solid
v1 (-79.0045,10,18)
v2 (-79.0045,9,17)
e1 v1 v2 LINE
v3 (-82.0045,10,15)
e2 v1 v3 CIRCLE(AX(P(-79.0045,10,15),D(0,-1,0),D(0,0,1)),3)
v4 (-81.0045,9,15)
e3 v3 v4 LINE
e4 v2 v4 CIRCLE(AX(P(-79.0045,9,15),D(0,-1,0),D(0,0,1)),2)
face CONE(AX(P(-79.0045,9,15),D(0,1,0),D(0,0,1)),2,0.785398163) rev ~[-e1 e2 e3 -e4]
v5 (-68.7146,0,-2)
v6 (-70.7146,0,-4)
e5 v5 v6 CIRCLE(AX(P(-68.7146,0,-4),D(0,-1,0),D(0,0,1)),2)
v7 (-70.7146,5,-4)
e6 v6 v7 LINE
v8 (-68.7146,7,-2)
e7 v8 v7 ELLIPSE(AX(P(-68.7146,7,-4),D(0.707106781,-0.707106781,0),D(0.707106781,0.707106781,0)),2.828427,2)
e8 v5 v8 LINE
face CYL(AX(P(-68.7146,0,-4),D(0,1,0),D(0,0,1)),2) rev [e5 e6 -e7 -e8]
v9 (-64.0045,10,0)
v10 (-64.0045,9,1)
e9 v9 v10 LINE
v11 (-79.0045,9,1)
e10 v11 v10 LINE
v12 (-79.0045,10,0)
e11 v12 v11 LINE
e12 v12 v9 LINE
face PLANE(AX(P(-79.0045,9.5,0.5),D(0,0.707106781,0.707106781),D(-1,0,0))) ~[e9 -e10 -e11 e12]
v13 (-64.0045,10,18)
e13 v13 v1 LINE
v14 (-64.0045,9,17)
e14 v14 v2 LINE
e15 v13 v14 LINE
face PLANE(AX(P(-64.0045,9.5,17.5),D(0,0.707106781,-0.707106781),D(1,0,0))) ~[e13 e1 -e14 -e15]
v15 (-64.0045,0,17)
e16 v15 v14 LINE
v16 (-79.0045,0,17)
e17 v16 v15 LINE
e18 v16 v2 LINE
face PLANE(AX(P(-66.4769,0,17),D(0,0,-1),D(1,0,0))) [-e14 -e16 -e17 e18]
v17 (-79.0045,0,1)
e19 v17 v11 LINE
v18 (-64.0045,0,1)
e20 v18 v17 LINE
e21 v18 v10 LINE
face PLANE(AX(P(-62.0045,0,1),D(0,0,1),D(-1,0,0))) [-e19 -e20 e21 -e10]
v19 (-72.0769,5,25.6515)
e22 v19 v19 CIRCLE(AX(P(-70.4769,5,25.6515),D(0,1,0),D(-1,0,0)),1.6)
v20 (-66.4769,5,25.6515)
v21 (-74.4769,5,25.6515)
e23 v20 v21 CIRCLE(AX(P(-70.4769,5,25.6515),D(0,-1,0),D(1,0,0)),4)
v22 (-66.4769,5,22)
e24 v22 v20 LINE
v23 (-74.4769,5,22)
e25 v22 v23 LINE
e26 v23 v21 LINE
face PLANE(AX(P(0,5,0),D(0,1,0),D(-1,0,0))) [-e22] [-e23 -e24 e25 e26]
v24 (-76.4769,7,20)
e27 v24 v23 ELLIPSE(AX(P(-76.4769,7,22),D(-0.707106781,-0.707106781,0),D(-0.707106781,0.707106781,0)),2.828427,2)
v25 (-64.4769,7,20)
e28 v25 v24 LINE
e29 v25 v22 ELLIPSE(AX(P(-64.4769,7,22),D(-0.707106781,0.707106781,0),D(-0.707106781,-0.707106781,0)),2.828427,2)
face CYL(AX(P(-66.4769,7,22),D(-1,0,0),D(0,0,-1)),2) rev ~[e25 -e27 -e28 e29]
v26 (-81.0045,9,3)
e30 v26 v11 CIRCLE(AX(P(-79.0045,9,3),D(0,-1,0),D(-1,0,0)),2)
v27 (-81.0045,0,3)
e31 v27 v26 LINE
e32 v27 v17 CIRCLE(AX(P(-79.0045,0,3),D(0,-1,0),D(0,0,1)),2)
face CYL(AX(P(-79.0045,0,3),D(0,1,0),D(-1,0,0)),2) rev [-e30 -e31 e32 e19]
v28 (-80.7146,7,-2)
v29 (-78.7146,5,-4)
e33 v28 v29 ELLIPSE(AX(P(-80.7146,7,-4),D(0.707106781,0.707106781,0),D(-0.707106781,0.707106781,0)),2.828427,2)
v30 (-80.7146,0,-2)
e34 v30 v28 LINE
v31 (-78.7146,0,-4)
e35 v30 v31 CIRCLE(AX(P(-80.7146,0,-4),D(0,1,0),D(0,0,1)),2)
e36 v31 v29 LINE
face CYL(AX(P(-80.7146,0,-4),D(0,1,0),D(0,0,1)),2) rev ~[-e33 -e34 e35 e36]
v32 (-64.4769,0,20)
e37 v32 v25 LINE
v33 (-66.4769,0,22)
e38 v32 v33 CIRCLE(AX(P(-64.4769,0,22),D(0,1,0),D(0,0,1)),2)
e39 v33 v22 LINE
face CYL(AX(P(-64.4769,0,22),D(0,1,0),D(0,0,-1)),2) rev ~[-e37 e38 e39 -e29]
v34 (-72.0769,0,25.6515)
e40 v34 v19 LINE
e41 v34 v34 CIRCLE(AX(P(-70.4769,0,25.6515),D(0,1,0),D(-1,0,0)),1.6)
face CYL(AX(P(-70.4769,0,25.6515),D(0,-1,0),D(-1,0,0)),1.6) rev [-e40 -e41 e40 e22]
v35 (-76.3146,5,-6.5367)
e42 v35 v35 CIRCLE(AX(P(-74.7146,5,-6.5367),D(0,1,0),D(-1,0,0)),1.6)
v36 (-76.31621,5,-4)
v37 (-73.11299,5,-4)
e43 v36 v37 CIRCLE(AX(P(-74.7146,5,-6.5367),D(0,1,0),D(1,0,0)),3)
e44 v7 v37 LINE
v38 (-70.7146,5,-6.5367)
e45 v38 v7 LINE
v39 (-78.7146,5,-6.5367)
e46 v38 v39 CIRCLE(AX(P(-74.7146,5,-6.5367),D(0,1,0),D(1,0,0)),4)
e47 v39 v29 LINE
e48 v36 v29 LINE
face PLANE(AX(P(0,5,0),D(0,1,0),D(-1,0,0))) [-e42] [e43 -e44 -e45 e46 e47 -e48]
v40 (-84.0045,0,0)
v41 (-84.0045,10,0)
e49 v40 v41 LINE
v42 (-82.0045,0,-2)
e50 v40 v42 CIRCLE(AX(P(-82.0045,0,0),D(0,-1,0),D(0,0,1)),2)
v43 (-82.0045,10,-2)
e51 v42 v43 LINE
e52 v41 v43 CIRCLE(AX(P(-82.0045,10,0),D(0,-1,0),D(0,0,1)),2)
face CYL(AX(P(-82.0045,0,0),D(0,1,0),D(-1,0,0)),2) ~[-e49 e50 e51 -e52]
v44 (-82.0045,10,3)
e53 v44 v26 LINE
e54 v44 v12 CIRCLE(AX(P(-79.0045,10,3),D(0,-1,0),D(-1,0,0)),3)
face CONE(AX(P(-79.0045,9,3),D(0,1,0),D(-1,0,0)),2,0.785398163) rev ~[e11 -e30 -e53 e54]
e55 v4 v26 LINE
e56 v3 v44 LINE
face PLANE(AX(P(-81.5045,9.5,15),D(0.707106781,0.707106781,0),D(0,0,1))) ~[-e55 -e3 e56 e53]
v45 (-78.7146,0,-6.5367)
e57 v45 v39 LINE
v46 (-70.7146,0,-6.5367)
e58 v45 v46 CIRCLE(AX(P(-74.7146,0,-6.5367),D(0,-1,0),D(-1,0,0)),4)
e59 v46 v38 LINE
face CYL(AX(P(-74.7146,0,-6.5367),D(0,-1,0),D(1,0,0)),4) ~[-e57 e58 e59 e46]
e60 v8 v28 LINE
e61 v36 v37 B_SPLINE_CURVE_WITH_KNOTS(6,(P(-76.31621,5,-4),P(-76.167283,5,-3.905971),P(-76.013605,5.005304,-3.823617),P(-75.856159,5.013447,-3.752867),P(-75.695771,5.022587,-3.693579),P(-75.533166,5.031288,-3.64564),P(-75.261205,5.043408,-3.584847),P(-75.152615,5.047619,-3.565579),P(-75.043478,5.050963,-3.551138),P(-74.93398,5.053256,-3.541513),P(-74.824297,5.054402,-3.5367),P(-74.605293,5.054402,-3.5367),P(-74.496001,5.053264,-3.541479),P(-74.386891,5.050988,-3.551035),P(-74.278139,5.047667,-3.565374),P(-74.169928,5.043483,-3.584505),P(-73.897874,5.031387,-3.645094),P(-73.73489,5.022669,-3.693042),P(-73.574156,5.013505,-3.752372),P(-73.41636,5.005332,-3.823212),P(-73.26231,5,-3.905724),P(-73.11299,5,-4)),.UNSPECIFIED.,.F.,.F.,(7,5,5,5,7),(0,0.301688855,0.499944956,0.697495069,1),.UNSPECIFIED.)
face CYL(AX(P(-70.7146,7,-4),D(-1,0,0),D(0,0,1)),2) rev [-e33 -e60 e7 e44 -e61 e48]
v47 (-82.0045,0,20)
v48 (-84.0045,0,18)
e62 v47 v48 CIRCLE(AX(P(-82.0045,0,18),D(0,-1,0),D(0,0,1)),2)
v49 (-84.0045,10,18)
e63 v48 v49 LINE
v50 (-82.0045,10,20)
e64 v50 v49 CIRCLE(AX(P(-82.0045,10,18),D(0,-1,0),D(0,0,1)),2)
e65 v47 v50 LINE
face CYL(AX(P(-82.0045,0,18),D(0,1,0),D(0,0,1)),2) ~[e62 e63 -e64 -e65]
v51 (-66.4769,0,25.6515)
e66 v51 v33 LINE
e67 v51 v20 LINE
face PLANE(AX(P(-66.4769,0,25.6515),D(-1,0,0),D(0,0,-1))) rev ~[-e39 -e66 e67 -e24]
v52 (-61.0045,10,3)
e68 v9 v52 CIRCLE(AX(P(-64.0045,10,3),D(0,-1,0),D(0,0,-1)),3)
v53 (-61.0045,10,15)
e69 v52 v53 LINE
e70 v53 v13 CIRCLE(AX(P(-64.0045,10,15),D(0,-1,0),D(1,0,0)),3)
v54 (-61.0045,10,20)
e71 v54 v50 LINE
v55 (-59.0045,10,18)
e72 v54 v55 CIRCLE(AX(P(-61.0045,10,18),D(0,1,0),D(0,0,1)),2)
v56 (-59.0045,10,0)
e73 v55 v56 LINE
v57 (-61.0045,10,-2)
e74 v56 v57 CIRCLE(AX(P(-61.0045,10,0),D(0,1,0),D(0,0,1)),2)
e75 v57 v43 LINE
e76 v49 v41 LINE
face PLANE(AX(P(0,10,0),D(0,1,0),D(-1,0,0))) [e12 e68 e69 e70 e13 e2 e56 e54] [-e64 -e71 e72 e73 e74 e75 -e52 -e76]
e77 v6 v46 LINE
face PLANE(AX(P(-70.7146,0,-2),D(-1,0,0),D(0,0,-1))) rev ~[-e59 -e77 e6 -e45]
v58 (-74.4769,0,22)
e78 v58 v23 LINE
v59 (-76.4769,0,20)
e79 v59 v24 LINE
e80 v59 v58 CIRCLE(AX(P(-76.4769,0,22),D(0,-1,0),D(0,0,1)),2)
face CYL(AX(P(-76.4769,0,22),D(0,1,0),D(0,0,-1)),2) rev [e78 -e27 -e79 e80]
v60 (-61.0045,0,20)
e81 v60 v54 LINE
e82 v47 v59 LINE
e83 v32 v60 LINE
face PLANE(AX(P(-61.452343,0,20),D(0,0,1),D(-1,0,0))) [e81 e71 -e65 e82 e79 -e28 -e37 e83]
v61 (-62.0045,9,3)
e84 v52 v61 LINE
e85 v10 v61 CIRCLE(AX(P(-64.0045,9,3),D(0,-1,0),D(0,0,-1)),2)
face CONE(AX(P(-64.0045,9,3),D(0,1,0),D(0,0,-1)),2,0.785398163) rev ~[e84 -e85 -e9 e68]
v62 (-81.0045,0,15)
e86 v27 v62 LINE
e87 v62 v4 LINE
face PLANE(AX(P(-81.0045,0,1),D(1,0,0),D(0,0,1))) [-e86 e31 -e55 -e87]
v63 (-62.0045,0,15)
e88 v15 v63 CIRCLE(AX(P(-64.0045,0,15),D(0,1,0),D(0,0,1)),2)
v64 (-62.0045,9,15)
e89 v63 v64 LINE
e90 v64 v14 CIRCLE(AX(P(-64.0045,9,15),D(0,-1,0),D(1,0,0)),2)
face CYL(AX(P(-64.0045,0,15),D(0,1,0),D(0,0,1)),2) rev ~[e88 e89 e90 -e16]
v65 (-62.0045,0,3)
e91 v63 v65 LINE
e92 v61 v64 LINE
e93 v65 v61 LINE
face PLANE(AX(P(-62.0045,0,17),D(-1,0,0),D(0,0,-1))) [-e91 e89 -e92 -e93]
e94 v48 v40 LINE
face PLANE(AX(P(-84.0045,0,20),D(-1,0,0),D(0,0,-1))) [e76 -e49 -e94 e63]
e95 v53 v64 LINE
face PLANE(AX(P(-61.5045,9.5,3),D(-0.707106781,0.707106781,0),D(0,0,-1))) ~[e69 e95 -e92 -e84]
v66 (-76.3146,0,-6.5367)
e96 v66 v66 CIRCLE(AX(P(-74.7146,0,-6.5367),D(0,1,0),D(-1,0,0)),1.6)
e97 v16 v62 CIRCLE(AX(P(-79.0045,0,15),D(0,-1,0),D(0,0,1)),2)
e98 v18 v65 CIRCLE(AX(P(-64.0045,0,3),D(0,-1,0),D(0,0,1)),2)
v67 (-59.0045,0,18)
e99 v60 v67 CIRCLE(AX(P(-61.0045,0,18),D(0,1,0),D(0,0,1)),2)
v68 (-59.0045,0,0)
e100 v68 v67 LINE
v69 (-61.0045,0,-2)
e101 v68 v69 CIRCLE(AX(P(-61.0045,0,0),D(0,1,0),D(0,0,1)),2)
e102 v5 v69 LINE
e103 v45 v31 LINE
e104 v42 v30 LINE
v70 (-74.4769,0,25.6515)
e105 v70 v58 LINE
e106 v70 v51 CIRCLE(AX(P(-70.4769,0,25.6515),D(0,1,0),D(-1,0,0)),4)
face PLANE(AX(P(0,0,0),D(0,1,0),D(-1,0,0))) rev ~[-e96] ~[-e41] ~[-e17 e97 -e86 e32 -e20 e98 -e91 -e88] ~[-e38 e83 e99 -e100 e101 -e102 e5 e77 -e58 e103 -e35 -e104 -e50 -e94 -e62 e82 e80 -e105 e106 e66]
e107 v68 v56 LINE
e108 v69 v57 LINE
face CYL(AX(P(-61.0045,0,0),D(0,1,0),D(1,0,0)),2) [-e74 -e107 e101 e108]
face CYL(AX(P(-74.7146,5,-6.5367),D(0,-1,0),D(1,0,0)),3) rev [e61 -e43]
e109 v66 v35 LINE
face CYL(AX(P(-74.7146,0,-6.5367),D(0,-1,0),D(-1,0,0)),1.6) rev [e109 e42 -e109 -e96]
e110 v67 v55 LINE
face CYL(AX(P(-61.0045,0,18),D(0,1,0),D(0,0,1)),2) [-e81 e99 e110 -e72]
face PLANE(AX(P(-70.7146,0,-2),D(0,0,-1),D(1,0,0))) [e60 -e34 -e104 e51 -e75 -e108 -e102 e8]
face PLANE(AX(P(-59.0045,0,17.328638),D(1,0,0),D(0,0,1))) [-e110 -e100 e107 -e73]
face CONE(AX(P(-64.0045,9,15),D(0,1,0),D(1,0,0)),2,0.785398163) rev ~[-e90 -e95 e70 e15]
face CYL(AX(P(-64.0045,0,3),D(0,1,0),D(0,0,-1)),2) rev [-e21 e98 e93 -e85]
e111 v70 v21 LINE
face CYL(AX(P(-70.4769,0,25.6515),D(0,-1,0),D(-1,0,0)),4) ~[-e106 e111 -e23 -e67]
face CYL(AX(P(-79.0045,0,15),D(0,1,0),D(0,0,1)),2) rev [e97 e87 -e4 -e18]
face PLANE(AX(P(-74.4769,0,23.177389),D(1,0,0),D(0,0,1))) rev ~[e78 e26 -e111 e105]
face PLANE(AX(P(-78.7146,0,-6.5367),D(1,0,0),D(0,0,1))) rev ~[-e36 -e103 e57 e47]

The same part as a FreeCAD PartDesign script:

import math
import FreeCAD as App
import Part
import Sketcher
from FreeCAD import Vector


def edges_at(feature, points):
    """Names of the edges that pass closest to the given points."""
    edges = feature.Shape.Edges
    near = lambda p: min(range(len(edges)), key=lambda i: edges[i].distToShape(Part.Vertex(*p))[0])
    return sorted({f"Edge{near(p) + 1}" for p in points})

doc = App.newDocument("Part")
params = doc.addObject("Spreadsheet::Sheet", "Params")
for row, (alias, value) in enumerate([
    ("sketch1_width", "19 mm"),
    ("sketch1_height", "22 mm"),
    ("sketch1_height2", "16 mm"),
    ("pad1_length", "10 mm"),
    ("sketch2_radius", "4 mm"),
    ("sketch2_diameter", "3.2 mm"),
    ("pad2_length", "5 mm"),
    ("fillet_radius", "2 mm"),
    ("fillet2_radius", "2 mm"),
    ("chamfer_size", "1 mm"),
    ("sketch3_diameter", "6 mm"),
    ("pocket1_length", "10 mm"),
], start=1):
    params.set(f"A{row}", alias)
    params.set(f"B{row}", "=" + value)
    params.setAlias(f"B{row}", alias)

body = doc.addObject("PartDesign::Body", "Body")

sketch1 = body.newObject("Sketcher::SketchObject", "Sketch")
sketch1.AttachmentSupport = (doc.getObject("XZ_Plane"), [""])
sketch1.MapMode = "FlatFace"
sketch1.addGeometry([
    Part.LineSegment(Vector(-59, 20, 0), Vector(-59, -2, 0)),
    Part.LineSegment(Vector(-59, -2, 0), Vector(-84, -2, 0)),
    Part.LineSegment(Vector(-84, -2, 0), Vector(-84, 20, 0)),
    Part.LineSegment(Vector(-84, 20, 0), Vector(-59, 20, 0)),
    Part.LineSegment(Vector(-62, 17, 0), Vector(-81, 17, 0)),
    Part.LineSegment(Vector(-81, 17, 0), Vector(-81, 1, 0)),
    Part.LineSegment(Vector(-81, 1, 0), Vector(-62, 1, 0)),
    Part.LineSegment(Vector(-62, 1, 0), Vector(-62, 17, 0)),
], False)
sketch1.addConstraint([
    Sketcher.Constraint("Coincident", 0, 2, 1, 1),
    Sketcher.Constraint("Coincident", 1, 2, 2, 1),
    Sketcher.Constraint("Coincident", 2, 2, 3, 1),
    Sketcher.Constraint("Coincident", 3, 2, 0, 1),
    Sketcher.Constraint("Coincident", 4, 2, 5, 1),
    Sketcher.Constraint("Coincident", 5, 2, 6, 1),
    Sketcher.Constraint("Coincident", 6, 2, 7, 1),
    Sketcher.Constraint("Coincident", 7, 2, 4, 1),
    Sketcher.Constraint("Vertical", 0),
    Sketcher.Constraint("Horizontal", 1),
    Sketcher.Constraint("Vertical", 2),
    Sketcher.Constraint("Horizontal", 3),
    Sketcher.Constraint("Horizontal", 4),
    Sketcher.Constraint("Vertical", 5),
    Sketcher.Constraint("Horizontal", 6),
    Sketcher.Constraint("Vertical", 7),
    Sketcher.Constraint("DistanceX", 4, 2, 4, 1, 19.0),
    Sketcher.Constraint("DistanceY", 0, 2, 0, 1, 22.0),
    Sketcher.Constraint("DistanceY", 5, 2, 5, 1, 16.0),
    Sketcher.Constraint("DistanceY", 0, 2, -1, 1, 2.0),
    Sketcher.Constraint("DistanceY", -1, 1, 5, 2, 1.0),
    Sketcher.Constraint("DistanceX", 2, 2, 4, 2, 3.0),
    Sketcher.Constraint("DistanceX", 4, 2, 3, 2, 22.0),
    Sketcher.Constraint("DistanceX", 0, 2, -1, 1, 59.0045),
])
sketch1.setExpression("Constraints[16]", "Params.sketch1_width")
sketch1.setExpression("Constraints[17]", "Params.sketch1_height")
sketch1.setExpression("Constraints[18]", "Params.sketch1_height2")
pad1 = body.newObject("PartDesign::Pad", "Pad")
pad1.Profile = sketch1
pad1.setExpression("Length", "Params.pad1_length")
pad1.Reversed = True

sketch2 = body.newObject("Sketcher::SketchObject", "Sketch001")
sketch2.AttachmentSupport = (doc.getObject("XZ_Plane"), [""])
sketch2.MapMode = "FlatFace"
sketch2.addGeometry([
    Part.LineSegment(Vector(-66.5, 25.7, 0), Vector(-66.5, 20, 0)),
    Part.LineSegment(Vector(-66.5, 20, 0), Vector(-74.5, 20, 0)),
    Part.LineSegment(Vector(-74.5, 20, 0), Vector(-74.5, 25.7, 0)),
    Part.ArcOfCircle(Part.Circle(Vector(-70.5, 25.7, 0), Vector(0, 0, 1), 4), math.radians(0), math.radians(180)),
    Part.Circle(Vector(-70.5, 25.7, 0), Vector(0, 0, 1), 1.6),
    Part.LineSegment(Vector(-70.7, -2, 0), Vector(-70.7, -6.5, 0)),
    Part.ArcOfCircle(Part.Circle(Vector(-74.7, -6.5, 0), Vector(0, 0, 1), 4), math.radians(180), math.radians(360)),
    Part.LineSegment(Vector(-78.7, -6.5, 0), Vector(-78.7, -2, 0)),
    Part.LineSegment(Vector(-78.7, -2, 0), Vector(-70.7, -2, 0)),
    Part.Circle(Vector(-74.7, -6.5, 0), Vector(0, 0, 1), 1.6),
], False)
sketch2.addConstraint([
    Sketcher.Constraint("Coincident", 0, 2, 1, 1),
    Sketcher.Constraint("Coincident", 1, 2, 2, 1),
    Sketcher.Constraint("Tangent", 2, 2, 3, 2),
    Sketcher.Constraint("Tangent", 3, 1, 0, 1),
    Sketcher.Constraint("Tangent", 5, 2, 6, 2),
    Sketcher.Constraint("Tangent", 6, 1, 7, 1),
    Sketcher.Constraint("Coincident", 7, 2, 8, 1),
    Sketcher.Constraint("Coincident", 8, 2, 5, 1),
    Sketcher.Constraint("Vertical", 0),
    Sketcher.Constraint("Horizontal", 1),
    Sketcher.Constraint("Vertical", 2),
    Sketcher.Constraint("Vertical", 5),
    Sketcher.Constraint("Vertical", 7),
    Sketcher.Constraint("Horizontal", 8),
    Sketcher.Constraint("Coincident", 4, 3, 3, 3),
    Sketcher.Constraint("Coincident", 9, 3, 6, 3),
    Sketcher.Constraint("Equal", 3, 6),
    Sketcher.Constraint("Equal", 4, 9),
    Sketcher.Constraint("Radius", 3, 4.0),
    Sketcher.Constraint("Diameter", 4, 3.2),
    Sketcher.Constraint("DistanceY", -1, 1, 0, 2, 20.0),
    Sketcher.Constraint("DistanceY", 7, 2, -1, 1, 2.0),
    Sketcher.Constraint("DistanceY", 0, 2, 0, 1, 5.6515),
    Sketcher.Constraint("DistanceY", 5, 2, 5, 1, 4.5367),
    Sketcher.Constraint("DistanceX", 3, 3, -1, 1, 70.477),
    Sketcher.Constraint("DistanceX", 6, 3, -1, 1, 74.7146),
])
sketch2.setExpression("Constraints[18]", "Params.sketch2_radius")
sketch2.setExpression("Constraints[19]", "Params.sketch2_diameter")
pad2 = body.newObject("PartDesign::Pad", "Pad001")
pad2.Profile = sketch2
pad2.setExpression("Length", "Params.pad2_length")
pad2.Reversed = True
doc.recompute()

fillet = body.newObject("PartDesign::Fillet", "Fillet")
fillet.Base = (pad2, edges_at(pad2, [
    (-70.477, 5, 20),
    (-66.477, 2.5, 20),
    (-74.477, 2.5, 20),
    (-70.715, 2.5, -2),
    (-74.715, 5, -2),
    (-78.715, 2.5, -2),
]))
fillet.setExpression("Radius", "Params.fillet_radius")
doc.recompute()

fillet2 = body.newObject("PartDesign::Fillet", "Fillet001")
fillet2.Base = (fillet, edges_at(fillet, [
    (-59.005, 5, 20),
    (-59.005, 5, -2),
    (-84.004, 5, 20),
    (-84.004, 5, -2),
    (-81.004, 5, 1),
    (-81.004, 5, 17),
    (-62.005, 5, 1),
    (-62.005, 5, 17),
]))
fillet2.setExpression("Radius", "Params.fillet2_radius")
doc.recompute()

chamfer = body.newObject("PartDesign::Chamfer", "Chamfer")
chamfer.Base = (fillet2, edges_at(fillet2, [
    (-71.504, 10, 1),
    (-62.005, 10, 9),
    (-71.504, 10, 17),
    (-81.004, 10, 9),
]))
chamfer.setExpression("Size", "Params.chamfer_size")

sketch3 = body.newObject("Sketcher::SketchObject", "Sketch002")
sketch3.AttachmentSupport = (doc.getObject("XZ_Plane"), [""])
sketch3.MapMode = "FlatFace"
sketch3.AttachmentOffset = App.Placement(Vector(0, 0, -5), App.Rotation())
sketch3.addGeometry(Part.Circle(Vector(-74.7, -6.5, 0), Vector(0, 0, 1), 3), False)
sketch3.addConstraint([
    Sketcher.Constraint("Diameter", 0, 6.0),
    Sketcher.Constraint("DistanceX", 0, 3, -1, 1, 74.7146),
    Sketcher.Constraint("DistanceY", 0, 3, -1, 1, 6.5367),
])
sketch3.setExpression("Constraints[0]", "Params.sketch3_diameter")
pocket1 = body.newObject("PartDesign::Pocket", "Pocket")
pocket1.Profile = sketch3
pocket1.setExpression("Length", "Params.pocket1_length")

doc.recompute()
